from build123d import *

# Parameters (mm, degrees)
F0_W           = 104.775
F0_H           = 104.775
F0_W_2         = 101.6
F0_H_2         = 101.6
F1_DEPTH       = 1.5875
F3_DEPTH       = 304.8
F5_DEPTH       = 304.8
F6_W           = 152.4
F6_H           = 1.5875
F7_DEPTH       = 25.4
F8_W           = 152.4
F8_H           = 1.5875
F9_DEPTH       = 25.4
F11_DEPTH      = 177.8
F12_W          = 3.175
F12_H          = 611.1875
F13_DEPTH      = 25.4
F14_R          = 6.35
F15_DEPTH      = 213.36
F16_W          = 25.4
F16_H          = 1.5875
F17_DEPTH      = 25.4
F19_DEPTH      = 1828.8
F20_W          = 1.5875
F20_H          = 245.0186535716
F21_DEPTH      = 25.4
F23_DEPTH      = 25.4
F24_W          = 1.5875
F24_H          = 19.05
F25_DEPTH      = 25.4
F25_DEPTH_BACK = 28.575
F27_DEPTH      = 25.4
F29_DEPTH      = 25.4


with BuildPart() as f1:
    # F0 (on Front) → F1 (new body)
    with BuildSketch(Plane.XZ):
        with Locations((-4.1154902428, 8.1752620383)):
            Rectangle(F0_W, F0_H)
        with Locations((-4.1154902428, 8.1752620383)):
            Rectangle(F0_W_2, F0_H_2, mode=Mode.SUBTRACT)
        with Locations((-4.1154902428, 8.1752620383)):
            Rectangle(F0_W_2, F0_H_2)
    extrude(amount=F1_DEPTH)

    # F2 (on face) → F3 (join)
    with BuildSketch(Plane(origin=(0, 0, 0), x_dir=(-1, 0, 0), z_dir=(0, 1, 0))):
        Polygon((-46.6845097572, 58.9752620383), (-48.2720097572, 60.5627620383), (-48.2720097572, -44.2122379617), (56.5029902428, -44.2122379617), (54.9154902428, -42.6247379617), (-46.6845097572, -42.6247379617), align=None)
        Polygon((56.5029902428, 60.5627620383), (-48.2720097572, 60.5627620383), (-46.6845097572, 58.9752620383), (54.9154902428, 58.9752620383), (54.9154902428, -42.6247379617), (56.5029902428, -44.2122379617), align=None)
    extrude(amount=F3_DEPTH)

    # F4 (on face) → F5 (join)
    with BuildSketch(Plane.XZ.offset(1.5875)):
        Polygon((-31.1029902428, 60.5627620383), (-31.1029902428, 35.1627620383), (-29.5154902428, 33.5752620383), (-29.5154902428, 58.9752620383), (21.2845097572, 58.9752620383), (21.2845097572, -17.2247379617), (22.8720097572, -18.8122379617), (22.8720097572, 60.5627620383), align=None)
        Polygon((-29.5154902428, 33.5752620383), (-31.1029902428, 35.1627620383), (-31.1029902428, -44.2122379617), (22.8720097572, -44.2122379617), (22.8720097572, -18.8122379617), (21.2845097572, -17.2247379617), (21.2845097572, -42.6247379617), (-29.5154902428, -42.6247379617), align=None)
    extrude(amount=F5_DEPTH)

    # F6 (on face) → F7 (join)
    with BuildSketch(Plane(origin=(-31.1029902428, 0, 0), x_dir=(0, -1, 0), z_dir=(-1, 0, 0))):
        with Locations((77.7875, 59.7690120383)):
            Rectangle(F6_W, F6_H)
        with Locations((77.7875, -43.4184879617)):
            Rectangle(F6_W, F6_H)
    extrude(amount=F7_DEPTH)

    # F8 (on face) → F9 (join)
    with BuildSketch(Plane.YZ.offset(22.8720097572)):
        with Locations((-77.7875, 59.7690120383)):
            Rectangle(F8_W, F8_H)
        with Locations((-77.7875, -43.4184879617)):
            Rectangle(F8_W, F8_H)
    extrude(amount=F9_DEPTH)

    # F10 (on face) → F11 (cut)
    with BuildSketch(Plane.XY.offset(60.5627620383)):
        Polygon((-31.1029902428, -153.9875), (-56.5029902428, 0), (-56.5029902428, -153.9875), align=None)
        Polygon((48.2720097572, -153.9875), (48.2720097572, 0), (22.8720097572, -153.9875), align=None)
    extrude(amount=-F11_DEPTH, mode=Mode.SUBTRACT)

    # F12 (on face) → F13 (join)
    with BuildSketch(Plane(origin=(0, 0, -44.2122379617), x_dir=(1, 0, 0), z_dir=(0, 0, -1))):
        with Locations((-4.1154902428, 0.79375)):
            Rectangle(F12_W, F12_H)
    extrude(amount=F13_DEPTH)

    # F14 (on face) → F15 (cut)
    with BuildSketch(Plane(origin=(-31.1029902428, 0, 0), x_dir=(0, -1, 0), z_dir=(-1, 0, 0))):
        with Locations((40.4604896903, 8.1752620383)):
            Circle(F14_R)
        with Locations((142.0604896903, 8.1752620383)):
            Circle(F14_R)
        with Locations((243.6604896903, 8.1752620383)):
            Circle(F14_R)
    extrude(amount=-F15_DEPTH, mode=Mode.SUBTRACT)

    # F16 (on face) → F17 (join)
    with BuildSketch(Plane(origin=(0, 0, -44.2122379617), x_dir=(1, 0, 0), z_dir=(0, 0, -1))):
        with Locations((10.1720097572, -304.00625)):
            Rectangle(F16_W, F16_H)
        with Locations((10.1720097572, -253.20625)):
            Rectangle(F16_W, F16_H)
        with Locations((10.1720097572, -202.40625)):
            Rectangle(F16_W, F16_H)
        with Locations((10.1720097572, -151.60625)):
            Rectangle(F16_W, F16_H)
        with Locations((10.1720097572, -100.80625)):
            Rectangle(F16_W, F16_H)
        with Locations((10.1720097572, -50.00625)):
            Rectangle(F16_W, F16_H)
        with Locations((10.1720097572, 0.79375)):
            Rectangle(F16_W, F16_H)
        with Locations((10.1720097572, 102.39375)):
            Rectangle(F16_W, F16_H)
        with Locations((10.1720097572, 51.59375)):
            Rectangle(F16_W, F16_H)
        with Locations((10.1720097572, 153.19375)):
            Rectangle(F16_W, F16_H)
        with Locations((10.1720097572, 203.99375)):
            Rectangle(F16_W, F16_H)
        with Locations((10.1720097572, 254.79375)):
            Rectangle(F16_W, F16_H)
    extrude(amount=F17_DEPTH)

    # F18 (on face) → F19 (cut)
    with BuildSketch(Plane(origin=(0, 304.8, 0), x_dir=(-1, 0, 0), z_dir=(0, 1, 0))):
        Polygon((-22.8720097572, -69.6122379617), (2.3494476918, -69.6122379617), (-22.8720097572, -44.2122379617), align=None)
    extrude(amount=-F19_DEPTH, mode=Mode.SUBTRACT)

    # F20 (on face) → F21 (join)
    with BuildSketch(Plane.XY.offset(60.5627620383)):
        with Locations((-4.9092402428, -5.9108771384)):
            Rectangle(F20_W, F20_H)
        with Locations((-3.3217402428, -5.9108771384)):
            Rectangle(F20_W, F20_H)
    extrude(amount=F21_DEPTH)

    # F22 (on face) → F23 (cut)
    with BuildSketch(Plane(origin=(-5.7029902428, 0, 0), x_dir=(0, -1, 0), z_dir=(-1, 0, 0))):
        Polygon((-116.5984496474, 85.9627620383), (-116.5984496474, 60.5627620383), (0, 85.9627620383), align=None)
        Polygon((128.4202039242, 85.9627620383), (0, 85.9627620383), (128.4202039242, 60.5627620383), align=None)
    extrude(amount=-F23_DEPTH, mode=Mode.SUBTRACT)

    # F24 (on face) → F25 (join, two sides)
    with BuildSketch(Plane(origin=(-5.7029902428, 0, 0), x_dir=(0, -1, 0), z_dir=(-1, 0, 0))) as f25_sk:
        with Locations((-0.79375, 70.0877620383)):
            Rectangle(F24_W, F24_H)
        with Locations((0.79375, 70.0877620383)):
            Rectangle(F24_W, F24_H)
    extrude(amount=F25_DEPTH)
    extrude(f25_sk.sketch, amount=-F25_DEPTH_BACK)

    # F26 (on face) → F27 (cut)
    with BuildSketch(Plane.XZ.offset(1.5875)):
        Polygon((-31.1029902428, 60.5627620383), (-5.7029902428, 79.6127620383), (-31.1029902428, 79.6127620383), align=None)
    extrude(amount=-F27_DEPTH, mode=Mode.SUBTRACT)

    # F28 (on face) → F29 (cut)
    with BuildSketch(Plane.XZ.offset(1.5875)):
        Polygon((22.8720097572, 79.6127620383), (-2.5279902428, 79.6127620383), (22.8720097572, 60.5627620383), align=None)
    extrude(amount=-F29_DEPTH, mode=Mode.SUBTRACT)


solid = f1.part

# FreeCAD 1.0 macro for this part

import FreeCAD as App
import Part
import Sketcher
Q = App.Units.Quantity

doc = App.newDocument("Part")
body = doc.addObject("PartDesign::Body", "Body")

# Sketch on XZ plane
sketch1 = doc.addObject("Sketcher::SketchObject", "Sketch")
body.addObject(sketch1)
sketch1.AttachmentSupport = (doc.XZ_Plane, [""])
sketch1.MapMode = "FlatFace"
sketch1.addGeometry([
    Part.LineSegment(App.Vector(-56.50299, 60.562762, 0), App.Vector(-56.50299, -44.212238, 0)),
    Part.LineSegment(App.Vector(-56.50299, -44.212238, 0), App.Vector(48.27201, -44.212238, 0)),
    Part.LineSegment(App.Vector(48.27201, -44.212238, 0), App.Vector(48.27201, 60.562762, 0)),
    Part.LineSegment(App.Vector(48.27201, 60.562762, 0), App.Vector(-56.50299, 60.562762, 0)),
], False)
sketch1.addConstraint([
    Sketcher.Constraint("Coincident", 0, 2, 1, 1),
    Sketcher.Constraint("Coincident", 1, 2, 2, 1),
    Sketcher.Constraint("Coincident", 2, 2, 3, 1),
    Sketcher.Constraint("Coincident", 3, 2, 0, 1),
    Sketcher.Constraint("Vertical", 0),
    Sketcher.Constraint("Horizontal", 1),
    Sketcher.Constraint("Vertical", 2),
    Sketcher.Constraint("Horizontal", 3),
    Sketcher.Constraint("Equal", 3, 0),
    Sketcher.Constraint("DistanceX", 1, 1, 1, 2, Q("4.125 in")),
    Sketcher.Constraint("DistanceX", 0, 2, -1, 1, 56.50299),
    Sketcher.Constraint("DistanceY", 0, 2, -1, 1, 44.212238),
])
pad1 = doc.addObject("PartDesign::Pad", "Pad")
body.addObject(pad1)
pad1.Profile = sketch1
pad1.Length = Q("0.0625 in")

# Sketch on XZ plane
sketch2 = doc.addObject("Sketcher::SketchObject", "Sketch001")
body.addObject(sketch2)
sketch2.AttachmentSupport = (doc.XZ_Plane, [""])
sketch2.MapMode = "FlatFace"
sketch2.addGeometry([
    Part.LineSegment(App.Vector(48.27201, 60.562762, 0), App.Vector(48.27201, -44.212238, 0)),  # 0
    Part.LineSegment(App.Vector(48.27201, -44.212238, 0), App.Vector(-56.50299, -44.212238, 0)),  # 1
    Part.LineSegment(App.Vector(-56.50299, -44.212238, 0), App.Vector(-56.50299, 60.562762, 0)),  # 2
    Part.LineSegment(App.Vector(-56.50299, 60.562762, 0), App.Vector(48.27201, 60.562762, 0)),  # 3
    Part.LineSegment(App.Vector(-54.91549, -42.624738, 0), App.Vector(46.68451, -42.624738, 0)),  # 4
    Part.LineSegment(App.Vector(46.68451, -42.624738, 0), App.Vector(46.68451, 58.975262, 0)),  # 5
    Part.LineSegment(App.Vector(46.68451, 58.975262, 0), App.Vector(-54.91549, 58.975262, 0)),  # 6
    Part.LineSegment(App.Vector(-54.91549, 58.975262, 0), App.Vector(-54.91549, -42.624738, 0)),  # 7
], False)
sketch2.addConstraint([
    Sketcher.Constraint("Coincident", 0, 2, 1, 1),
    Sketcher.Constraint("Coincident", 1, 2, 2, 1),
    Sketcher.Constraint("Coincident", 2, 2, 3, 1),
    Sketcher.Constraint("Coincident", 3, 2, 0, 1),
    Sketcher.Constraint("Coincident", 4, 2, 5, 1),
    Sketcher.Constraint("Coincident", 5, 2, 6, 1),
    Sketcher.Constraint("Coincident", 6, 2, 7, 1),
    Sketcher.Constraint("Coincident", 7, 2, 4, 1),
    Sketcher.Constraint("Vertical", 0),
    Sketcher.Constraint("Horizontal", 1),
    Sketcher.Constraint("Vertical", 2),
    Sketcher.Constraint("Horizontal", 3),
    Sketcher.Constraint("Horizontal", 4),
    Sketcher.Constraint("Vertical", 5),
    Sketcher.Constraint("Horizontal", 6),
    Sketcher.Constraint("Vertical", 7),
    Sketcher.Constraint("Equal", 3, 0),
    Sketcher.Constraint("Equal", 6, 5),
    Sketcher.Constraint("DistanceX", 4, 1, 4, 2, Q("4 in")),
    Sketcher.Constraint("DistanceX", 1, 2, 1, 1, Q("4.125 in")),
    Sketcher.Constraint("DistanceX", 4, 2, 0, 2, Q("0.0625 in")),
    Sketcher.Constraint("DistanceY", 0, 2, 4, 2, Q("0.0625 in")),
    Sketcher.Constraint("DistanceX", -1, 1, 0, 2, 48.27201),
    Sketcher.Constraint("DistanceY", 0, 2, -1, 1, 44.212238),
])
pad2 = doc.addObject("PartDesign::Pad", "Pad001")
body.addObject(pad2)
pad2.Profile = sketch2
pad2.Length = Q("12 in")
pad2.Reversed = True

# Sketch on XZ plane
sketch3 = doc.addObject("Sketcher::SketchObject", "Sketch002")
body.addObject(sketch3)
sketch3.AttachmentSupport = (doc.XZ_Plane, [""])
sketch3.MapMode = "FlatFace"
sketch3.AttachmentOffset = App.Placement(App.Vector(0, 0, 0.0625 * 25.4), App.Rotation())
sketch3.addGeometry([
    Part.LineSegment(App.Vector(-31.10299, 60.562762, 0), App.Vector(-31.10299, -44.212238, 0)),  # 0
    Part.LineSegment(App.Vector(-31.10299, -44.212238, 0), App.Vector(22.87201, -44.212238, 0)),  # 1
    Part.LineSegment(App.Vector(22.87201, -44.212238, 0), App.Vector(22.87201, 60.562762, 0)),  # 2
    Part.LineSegment(App.Vector(22.87201, 60.562762, 0), App.Vector(-31.10299, 60.562762, 0)),  # 3
    Part.LineSegment(App.Vector(-29.51549, 58.975262, 0), App.Vector(21.28451, 58.975262, 0)),  # 4
    Part.LineSegment(App.Vector(21.28451, 58.975262, 0), App.Vector(21.28451, -42.624738, 0)),  # 5
    Part.LineSegment(App.Vector(21.28451, -42.624738, 0), App.Vector(-29.51549, -42.624738, 0)),  # 6
    Part.LineSegment(App.Vector(-29.51549, -42.624738, 0), App.Vector(-29.51549, 58.975262, 0)),  # 7
], False)
sketch3.addConstraint([
    Sketcher.Constraint("Coincident", 0, 2, 1, 1),
    Sketcher.Constraint("Coincident", 1, 2, 2, 1),
    Sketcher.Constraint("Coincident", 2, 2, 3, 1),
    Sketcher.Constraint("Coincident", 3, 2, 0, 1),
    Sketcher.Constraint("Coincident", 4, 2, 5, 1),
    Sketcher.Constraint("Coincident", 5, 2, 6, 1),
    Sketcher.Constraint("Coincident", 6, 2, 7, 1),
    Sketcher.Constraint("Coincident", 7, 2, 4, 1),
    Sketcher.Constraint("Vertical", 0),
    Sketcher.Constraint("Horizontal", 1),
    Sketcher.Constraint("Vertical", 2),
    Sketcher.Constraint("Horizontal", 3),
    Sketcher.Constraint("Horizontal", 4),
    Sketcher.Constraint("Vertical", 5),
    Sketcher.Constraint("Horizontal", 6),
    Sketcher.Constraint("Vertical", 7),
    Sketcher.Constraint("DistanceX", 4, 1, 4, 2, Q("2 in")),
    Sketcher.Constraint("DistanceY", 5, 2, 5, 1, Q("4 in")),
    Sketcher.Constraint("DistanceX", 1, 1, 1, 2, Q("2.125 in")),
    Sketcher.Constraint("DistanceY", 0, 2, 0, 1, Q("4.125 in")),
    Sketcher.Constraint("DistanceX", 4, 2, 2, 2, Q("0.0625 in")),
    Sketcher.Constraint("DistanceY", 4, 2, 2, 2, Q("0.0625 in")),
    Sketcher.Constraint("DistanceX", 0, 2, -1, 1, 31.10299),
    Sketcher.Constraint("DistanceY", 0, 2, -1, 1, 44.212238),
])
pad3 = doc.addObject("PartDesign::Pad", "Pad002")
body.addObject(pad3)
pad3.Profile = sketch3
pad3.Length = Q("12 in")

# Sketch on YZ plane
sketch4 = doc.addObject("Sketcher::SketchObject", "Sketch003")
body.addObject(sketch4)
sketch4.AttachmentSupport = (doc.YZ_Plane, [""])
sketch4.MapMode = "FlatFace"
sketch4.AttachmentOffset = App.Placement(App.Vector(0, 0, -31.10299), App.Rotation())
sketch4.addGeometry([
    Part.LineSegment(App.Vector(-1.5875, 60.562762, 0), App.Vector(-1.5875, 58.975262, 0)),  # 0
    Part.LineSegment(App.Vector(-1.5875, 58.975262, 0), App.Vector(-153.9875, 58.975262, 0)),  # 1
    Part.LineSegment(App.Vector(-153.9875, 58.975262, 0), App.Vector(-153.9875, 60.562762, 0)),  # 2
    Part.LineSegment(App.Vector(-153.9875, 60.562762, 0), App.Vector(-1.5875, 60.562762, 0)),  # 3
    Part.LineSegment(App.Vector(-1.5875, -42.624738, 0), App.Vector(-1.5875, -44.212238, 0)),  # 4
    Part.LineSegment(App.Vector(-1.5875, -44.212238, 0), App.Vector(-153.9875, -44.212238, 0)),  # 5
    Part.LineSegment(App.Vector(-153.9875, -44.212238, 0), App.Vector(-153.9875, -42.624738, 0)),  # 6
    Part.LineSegment(App.Vector(-153.9875, -42.624738, 0), App.Vector(-1.5875, -42.624738, 0)),  # 7
], False)
sketch4.addConstraint([
    Sketcher.Constraint("Coincident", 0, 2, 1, 1),
    Sketcher.Constraint("Coincident", 1, 2, 2, 1),
    Sketcher.Constraint("Coincident", 2, 2, 3, 1),
    Sketcher.Constraint("Coincident", 3, 2, 0, 1),
    Sketcher.Constraint("Coincident", 4, 2, 5, 1),
    Sketcher.Constraint("Coincident", 5, 2, 6, 1),
    Sketcher.Constraint("Coincident", 6, 2, 7, 1),
    Sketcher.Constraint("Coincident", 7, 2, 4, 1),
    Sketcher.Constraint("Vertical", 0),
    Sketcher.Constraint("Horizontal", 1),
    Sketcher.Constraint("Vertical", 2),
    Sketcher.Constraint("Horizontal", 3),
    Sketcher.Constraint("Vertical", 4),
    Sketcher.Constraint("Horizontal", 5),
    Sketcher.Constraint("Vertical", 6),
    Sketcher.Constraint("Horizontal", 7),
    Sketcher.Constraint("Vertical", 3, 2, 4, 2),
    Sketcher.Constraint("Vertical", 2, 2, 5, 2),
    Sketcher.Constraint("Equal", 2, 4),
    Sketcher.Constraint("DistanceX", 1, 2, 1, 1, Q("6 in")),
    Sketcher.Constraint("DistanceY", 6, 2, 1, 2, Q("4 in")),
    Sketcher.Constraint("DistanceY", 0, 2, 0, 1, Q("0.0625 in")),
    Sketcher.Constraint("DistanceX", 0, 2, -1, 1, Q("0.0625 in")),
    Sketcher.Constraint("DistanceY", -1, 1, 0, 2, 58.975262),
])
pad4 = doc.addObject("PartDesign::Pad", "Pad003")
body.addObject(pad4)
pad4.Profile = sketch4
pad4.Length = Q("1 in")
pad4.Reversed = True

# Sketch on YZ plane
sketch5 = doc.addObject("Sketcher::SketchObject", "Sketch004")
body.addObject(sketch5)
sketch5.AttachmentSupport = (doc.YZ_Plane, [""])
sketch5.MapMode = "FlatFace"
sketch5.AttachmentOffset = App.Placement(App.Vector(0, 0, 22.87201), App.Rotation())
sketch5.addGeometry([
    Part.LineSegment(App.Vector(-153.9875, 60.562762, 0), App.Vector(-153.9875, 58.975262, 0)),  # 0
    Part.LineSegment(App.Vector(-153.9875, 58.975262, 0), App.Vector(-1.5875, 58.975262, 0)),  # 1
    Part.LineSegment(App.Vector(-1.5875, 58.975262, 0), App.Vector(-1.5875, 60.562762, 0)),  # 2
    Part.LineSegment(App.Vector(-1.5875, 60.562762, 0), App.Vector(-153.9875, 60.562762, 0)),  # 3
    Part.LineSegment(App.Vector(-153.9875, -42.624738, 0), App.Vector(-153.9875, -44.212238, 0)),  # 4
    Part.LineSegment(App.Vector(-153.9875, -44.212238, 0), App.Vector(-1.5875, -44.212238, 0)),  # 5
    Part.LineSegment(App.Vector(-1.5875, -44.212238, 0), App.Vector(-1.5875, -42.624738, 0)),  # 6
    Part.LineSegment(App.Vector(-1.5875, -42.624738, 0), App.Vector(-153.9875, -42.624738, 0)),  # 7
], False)
sketch5.addConstraint([
    Sketcher.Constraint("Coincident", 0, 2, 1, 1),
    Sketcher.Constraint("Coincident", 1, 2, 2, 1),
    Sketcher.Constraint("Coincident", 2, 2, 3, 1),
    Sketcher.Constraint("Coincident", 3, 2, 0, 1),
    Sketcher.Constraint("Coincident", 4, 2, 5, 1),
    Sketcher.Constraint("Coincident", 5, 2, 6, 1),
    Sketcher.Constraint("Coincident", 6, 2, 7, 1),
    Sketcher.Constraint("Coincident", 7, 2, 4, 1),
    Sketcher.Constraint("Vertical", 0),
    Sketcher.Constraint("Horizontal", 1),
    Sketcher.Constraint("Vertical", 2),
    Sketcher.Constraint("Horizontal", 3),
    Sketcher.Constraint("Vertical", 4),
    Sketcher.Constraint("Horizontal", 5),
    Sketcher.Constraint("Vertical", 6),
    Sketcher.Constraint("Horizontal", 7),
    Sketcher.Constraint("Vertical", 3, 2, 4, 2),
    Sketcher.Constraint("Vertical", 2, 2, 5, 2),
    Sketcher.Constraint("Equal", 2, 4),
    Sketcher.Constraint("DistanceX", 1, 1, 1, 2, Q("6 in")),
    Sketcher.Constraint("DistanceY", 6, 2, 1, 2, Q("4 in")),
    Sketcher.Constraint("DistanceY", 0, 2, 0, 1, Q("0.0625 in")),
    Sketcher.Constraint("DistanceX", 0, 2, -1, 1, Q("6.0625 in")),
    Sketcher.Constraint("DistanceY", -1, 1, 0, 2, 58.975262),
])
pad5 = doc.addObject("PartDesign::Pad", "Pad004")
body.addObject(pad5)
pad5.Profile = sketch5
pad5.Length = Q("1 in")

# Sketch on XY plane
sketch6 = doc.addObject("Sketcher::SketchObject", "Sketch005")
body.addObject(sketch6)
sketch6.AttachmentSupport = (doc.XY_Plane, [""])
sketch6.MapMode = "FlatFace"
sketch6.AttachmentOffset = App.Placement(App.Vector(0, 0, 60.562762), App.Rotation())
sketch6.addGeometry([
    Part.LineSegment(App.Vector(-31.10299, -153.9875, 0), App.Vector(-56.50299, 0, 0)),  # 0
    Part.LineSegment(App.Vector(-56.50299, 0, 0), App.Vector(-56.50299, -153.9875, 0)),  # 1
    Part.LineSegment(App.Vector(-56.50299, -153.9875, 0), App.Vector(-31.10299, -153.9875, 0)),  # 2
    Part.LineSegment(App.Vector(48.27201, -153.9875, 0), App.Vector(48.27201, 0, 0)),  # 3
    Part.LineSegment(App.Vector(48.27201, 0, 0), App.Vector(22.87201, -153.9875, 0)),  # 4
    Part.LineSegment(App.Vector(22.87201, -153.9875, 0), App.Vector(48.27201, -153.9875, 0)),  # 5
], False)
sketch6.addConstraint([
    Sketcher.Constraint("Coincident", 0, 2, 1, 1),
    Sketcher.Constraint("Coincident", 1, 2, 2, 1),
    Sketcher.Constraint("Coincident", 2, 2, 0, 1),
    Sketcher.Constraint("Coincident", 3, 2, 4, 1),
    Sketcher.Constraint("Coincident", 4, 2, 5, 1),
    Sketcher.Constraint("Coincident", 5, 2, 3, 1),
    Sketcher.Constraint("Vertical", 1),
    Sketcher.Constraint("Horizontal", 2),
    Sketcher.Constraint("Vertical", 3),
    Sketcher.Constraint("Horizontal", 5),
    Sketcher.Constraint("PointOnObject", 0, 2, -1),
    Sketcher.Constraint("PointOnObject", 3, 2, -1),
    Sketcher.Constraint("Horizontal", 2, 2, 4, 2),
    Sketcher.Constraint("Equal", 2, 5),
    Sketcher.Constraint("DistanceX", 2, 1, 2, 2, Q("1 in")),
    Sketcher.Constraint("DistanceY", 1, 2, 1, 1, Q("6.0625 in")),
    Sketcher.Constraint("DistanceX", 0, 2, 3, 2, Q("4.125 in")),
    Sketcher.Constraint("DistanceX", 0, 2, -1, 1, 56.50299),
])
pocket1 = doc.addObject("PartDesign::Pocket", "Pocket")
body.addObject(pocket1)
pocket1.Profile = sketch6
pocket1.Length = Q("7 in")

# Sketch on XY plane
sketch7 = doc.addObject("Sketcher::SketchObject", "Sketch006")
body.addObject(sketch7)
sketch7.AttachmentSupport = (doc.XY_Plane, [""])
sketch7.MapMode = "FlatFace"
sketch7.AttachmentOffset = App.Placement(App.Vector(0, 0, -44.212238), App.Rotation())
sketch7.addGeometry([
    Part.LineSegment(App.Vector(-5.70299, -306.3875, 0), App.Vector(-5.70299, 304.8, 0)),
    Part.LineSegment(App.Vector(-5.70299, 304.8, 0), App.Vector(-2.52799, 304.8, 0)),
    Part.LineSegment(App.Vector(-2.52799, 304.8, 0), App.Vector(-2.52799, -306.3875, 0)),
    Part.LineSegment(App.Vector(-2.52799, -306.3875, 0), App.Vector(-5.70299, -306.3875, 0)),
], False)
sketch7.addConstraint([
    Sketcher.Constraint("Coincident", 0, 2, 1, 1),
    Sketcher.Constraint("Coincident", 1, 2, 2, 1),
    Sketcher.Constraint("Coincident", 2, 2, 3, 1),
    Sketcher.Constraint("Coincident", 3, 2, 0, 1),
    Sketcher.Constraint("Vertical", 0),
    Sketcher.Constraint("Horizontal", 1),
    Sketcher.Constraint("Vertical", 2),
    Sketcher.Constraint("Horizontal", 3),
    Sketcher.Constraint("DistanceY", -1, 1, 0, 2, Q("12 in")),
    Sketcher.Constraint("DistanceX", 1, 1, 1, 2, Q("0.125 in")),
    Sketcher.Constraint("DistanceY", 0, 1, 0, 2, Q("24.0625 in")),
    Sketcher.Constraint("DistanceX", 0, 2, -1, 1, 5.70299),
])
pad6 = doc.addObject("PartDesign::Pad", "Pad005")
body.addObject(pad6)
pad6.Profile = sketch7
pad6.Length = Q("1 in")
pad6.Reversed = True

# Sketch on YZ plane
sketch8 = doc.addObject("Sketcher::SketchObject", "Sketch007")
body.addObject(sketch8)
sketch8.AttachmentSupport = (doc.YZ_Plane, [""])
sketch8.MapMode = "FlatFace"
sketch8.AttachmentOffset = App.Placement(App.Vector(0, 0, -31.10299), App.Rotation())
sketch8.addGeometry([
    Part.Circle(App.Vector(-40.46049, 8.175262, 0), App.Vector(0, 0, 1), 6.35),
    Part.Circle(App.Vector(-142.06049, 8.175262, 0), App.Vector(0, 0, 1), 6.35),
    Part.Circle(App.Vector(-243.66049, 8.175262, 0), App.Vector(0, 0, 1), 6.35),
], False)
sketch8.addConstraint([
    Sketcher.Constraint("Equal", 0, 1),
    Sketcher.Constraint("Equal", 1, 2),
    Sketcher.Constraint("Horizontal", 0, 3, 1, 3),
    Sketcher.Constraint("Horizontal", 1, 3, 2, 3),
    Sketcher.Constraint("Diameter", 0, Q("0.5 in")),
    Sketcher.Constraint("DistanceX", 1, 3, 0, 3, Q("4 in")),
    Sketcher.Constraint("DistanceX", 2, 3, 1, 3, Q("4 in")),
    Sketcher.Constraint("DistanceX", 0, 3, -1, 1, 40.46049),
    Sketcher.Constraint("DistanceY", -1, 1, 0, 3, 8.175262),
])
pocket2 = doc.addObject("PartDesign::Pocket", "Pocket001")
body.addObject(pocket2)
pocket2.Profile = sketch8
pocket2.Length = Q("8.4 in")
pocket2.Reversed = True

# Sketch on XY plane
sketch9 = doc.addObject("Sketcher::SketchObject", "Sketch008")
body.addObject(sketch9)
sketch9.AttachmentSupport = (doc.XY_Plane, [""])
sketch9.MapMode = "FlatFace"
sketch9.AttachmentOffset = App.Placement(App.Vector(0, 0, -44.212238), App.Rotation())
sketch9.addGeometry([
    Part.LineSegment(App.Vector(-2.52799, 303.2125, 0), App.Vector(-2.52799, 304.8, 0)),  # 0
    Part.LineSegment(App.Vector(-2.52799, 304.8, 0), App.Vector(22.87201, 304.8, 0)),  # 1
    Part.LineSegment(App.Vector(22.87201, 304.8, 0), App.Vector(22.87201, 303.2125, 0)),  # 2
    Part.LineSegment(App.Vector(22.87201, 303.2125, 0), App.Vector(-2.52799, 303.2125, 0)),  # 3
    Part.LineSegment(App.Vector(-2.52799, 252.4125, 0), App.Vector(-2.52799, 254, 0)),  # 4
    Part.LineSegment(App.Vector(-2.52799, 254, 0), App.Vector(22.87201, 254, 0)),  # 5
    Part.LineSegment(App.Vector(22.87201, 254, 0), App.Vector(22.87201, 252.4125, 0)),  # 6
    Part.LineSegment(App.Vector(22.87201, 252.4125, 0), App.Vector(-2.52799, 252.4125, 0)),  # 7
    Part.LineSegment(App.Vector(-2.52799, 201.6125, 0), App.Vector(-2.52799, 203.2, 0)),  # 8
    Part.LineSegment(App.Vector(-2.52799, 203.2, 0), App.Vector(22.87201, 203.2, 0)),  # 9
    Part.LineSegment(App.Vector(22.87201, 203.2, 0), App.Vector(22.87201, 201.6125, 0)),  # 10
    Part.LineSegment(App.Vector(22.87201, 201.6125, 0), App.Vector(-2.52799, 201.6125, 0)),  # 11
    Part.LineSegment(App.Vector(-2.52799, 150.8125, 0), App.Vector(-2.52799, 152.4, 0)),  # 12
    Part.LineSegment(App.Vector(-2.52799, 152.4, 0), App.Vector(22.87201, 152.4, 0)),  # 13
    Part.LineSegment(App.Vector(22.87201, 152.4, 0), App.Vector(22.87201, 150.8125, 0)),  # 14
    Part.LineSegment(App.Vector(22.87201, 150.8125, 0), App.Vector(-2.52799, 150.8125, 0)),  # 15
    Part.LineSegment(App.Vector(-2.52799, 100.0125, 0), App.Vector(-2.52799, 101.6, 0)),  # 16
    Part.LineSegment(App.Vector(-2.52799, 101.6, 0), App.Vector(22.87201, 101.6, 0)),  # 17
    Part.LineSegment(App.Vector(22.87201, 101.6, 0), App.Vector(22.87201, 100.0125, 0)),  # 18
    Part.LineSegment(App.Vector(22.87201, 100.0125, 0), App.Vector(-2.52799, 100.0125, 0)),  # 19
    Part.LineSegment(App.Vector(-2.52799, 49.2125, 0), App.Vector(-2.52799, 50.8, 0)),  # 20
    Part.LineSegment(App.Vector(-2.52799, 50.8, 0), App.Vector(22.87201, 50.8, 0)),  # 21
    Part.LineSegment(App.Vector(22.87201, 50.8, 0), App.Vector(22.87201, 49.2125, 0)),  # 22
    Part.LineSegment(App.Vector(22.87201, 49.2125, 0), App.Vector(-2.52799, 49.2125, 0)),  # 23
    Part.LineSegment(App.Vector(-2.52799, -1.5875, 0), App.Vector(-2.52799, 0, 0)),  # 24
    Part.LineSegment(App.Vector(-2.52799, 0, 0), App.Vector(22.87201, 0, 0)),  # 25
    Part.LineSegment(App.Vector(22.87201, 0, 0), App.Vector(22.87201, -1.5875, 0)),  # 26
    Part.LineSegment(App.Vector(22.87201, -1.5875, 0), App.Vector(-2.52799, -1.5875, 0)),  # 27
    Part.LineSegment(App.Vector(-2.52799, -103.1875, 0), App.Vector(-2.52799, -101.6, 0)),  # 28
    Part.LineSegment(App.Vector(-2.52799, -101.6, 0), App.Vector(22.87201, -101.6, 0)),  # 29
    Part.LineSegment(App.Vector(22.87201, -101.6, 0), App.Vector(22.87201, -103.1875, 0)),  # 30
    Part.LineSegment(App.Vector(22.87201, -103.1875, 0), App.Vector(-2.52799, -103.1875, 0)),  # 31
    Part.LineSegment(App.Vector(-2.52799, -52.3875, 0), App.Vector(-2.52799, -50.8, 0)),  # 32
    Part.LineSegment(App.Vector(-2.52799, -50.8, 0), App.Vector(22.87201, -50.8, 0)),  # 33
    Part.LineSegment(App.Vector(22.87201, -50.8, 0), App.Vector(22.87201, -52.3875, 0)),  # 34
    Part.LineSegment(App.Vector(22.87201, -52.3875, 0), App.Vector(-2.52799, -52.3875, 0)),  # 35
    Part.LineSegment(App.Vector(-2.52799, -153.9875, 0), App.Vector(-2.52799, -152.4, 0)),  # 36
    Part.LineSegment(App.Vector(-2.52799, -152.4, 0), App.Vector(22.87201, -152.4, 0)),  # 37
    Part.LineSegment(App.Vector(22.87201, -152.4, 0), App.Vector(22.87201, -153.9875, 0)),  # 38
    Part.LineSegment(App.Vector(22.87201, -153.9875, 0), App.Vector(-2.52799, -153.9875, 0)),  # 39
    Part.LineSegment(App.Vector(-2.52799, -204.7875, 0), App.Vector(-2.52799, -203.2, 0)),  # 40
    Part.LineSegment(App.Vector(-2.52799, -203.2, 0), App.Vector(22.87201, -203.2, 0)),  # 41
    Part.LineSegment(App.Vector(22.87201, -203.2, 0), App.Vector(22.87201, -204.7875, 0)),  # 42
    Part.LineSegment(App.Vector(22.87201, -204.7875, 0), App.Vector(-2.52799, -204.7875, 0)),  # 43
    Part.LineSegment(App.Vector(-2.52799, -255.5875, 0), App.Vector(-2.52799, -254, 0)),  # 44
    Part.LineSegment(App.Vector(-2.52799, -254, 0), App.Vector(22.87201, -254, 0)),  # 45
    Part.LineSegment(App.Vector(22.87201, -254, 0), App.Vector(22.87201, -255.5875, 0)),  # 46
    Part.LineSegment(App.Vector(22.87201, -255.5875, 0), App.Vector(-2.52799, -255.5875, 0)),  # 47
], False)
sketch9.addConstraint([
    Sketcher.Constraint("Coincident", 0, 2, 1, 1),
    Sketcher.Constraint("Coincident", 1, 2, 2, 1),
    Sketcher.Constraint("Coincident", 2, 2, 3, 1),
    Sketcher.Constraint("Coincident", 3, 2, 0, 1),
    Sketcher.Constraint("Coincident", 4, 2, 5, 1),
    Sketcher.Constraint("Coincident", 5, 2, 6, 1),
    Sketcher.Constraint("Coincident", 6, 2, 7, 1),
    Sketcher.Constraint("Coincident", 7, 2, 4, 1),
    Sketcher.Constraint("Coincident", 8, 2, 9, 1),
    Sketcher.Constraint("Coincident", 9, 2, 10, 1),
    Sketcher.Constraint("Coincident", 10, 2, 11, 1),
    Sketcher.Constraint("Coincident", 11, 2, 8, 1),
    Sketcher.Constraint("Coincident", 12, 2, 13, 1),
    Sketcher.Constraint("Coincident", 13, 2, 14, 1),
    Sketcher.Constraint("Coincident", 14, 2, 15, 1),
    Sketcher.Constraint("Coincident", 15, 2, 12, 1),
    Sketcher.Constraint("Coincident", 16, 2, 17, 1),
    Sketcher.Constraint("Coincident", 17, 2, 18, 1),
    Sketcher.Constraint("Coincident", 18, 2, 19, 1),
    Sketcher.Constraint("Coincident", 19, 2, 16, 1),
    Sketcher.Constraint("Coincident", 20, 2, 21, 1),
    Sketcher.Constraint("Coincident", 21, 2, 22, 1),
    Sketcher.Constraint("Coincident", 22, 2, 23, 1),
    Sketcher.Constraint("Coincident", 23, 2, 20, 1),
    Sketcher.Constraint("Coincident", 24, 2, 25, 1),
    Sketcher.Constraint("Coincident", 25, 2, 26, 1),
    Sketcher.Constraint("Coincident", 26, 2, 27, 1),
    Sketcher.Constraint("Coincident", 27, 2, 24, 1),
    Sketcher.Constraint("Coincident", 28, 2, 29, 1),
    Sketcher.Constraint("Coincident", 29, 2, 30, 1),
    Sketcher.Constraint("Coincident", 30, 2, 31, 1),
    Sketcher.Constraint("Coincident", 31, 2, 28, 1),
    Sketcher.Constraint("Coincident", 32, 2, 33, 1),
    Sketcher.Constraint("Coincident", 33, 2, 34, 1),
    Sketcher.Constraint("Coincident", 34, 2, 35, 1),
    Sketcher.Constraint("Coincident", 35, 2, 32, 1),
    Sketcher.Constraint("Coincident", 36, 2, 37, 1),
    Sketcher.Constraint("Coincident", 37, 2, 38, 1),
    Sketcher.Constraint("Coincident", 38, 2, 39, 1),
    Sketcher.Constraint("Coincident", 39, 2, 36, 1),
    Sketcher.Constraint("Coincident", 40, 2, 41, 1),
    Sketcher.Constraint("Coincident", 41, 2, 42, 1),
    Sketcher.Constraint("Coincident", 42, 2, 43, 1),
    Sketcher.Constraint("Coincident", 43, 2, 40, 1),
    Sketcher.Constraint("Coincident", 44, 2, 45, 1),
    Sketcher.Constraint("Coincident", 45, 2, 46, 1),
    Sketcher.Constraint("Coincident", 46, 2, 47, 1),
    Sketcher.Constraint("Coincident", 47, 2, 44, 1),
    Sketcher.Constraint("Vertical", 0),
    Sketcher.Constraint("Horizontal", 1),
    Sketcher.Constraint("Vertical", 2),
    Sketcher.Constraint("Horizontal", 3),
    Sketcher.Constraint("Vertical", 4),
    Sketcher.Constraint("Horizontal", 5),
    Sketcher.Constraint("Vertical", 6),
    Sketcher.Constraint("Horizontal", 7),
    Sketcher.Constraint("Vertical", 8),
    Sketcher.Constraint("Horizontal", 9),
    Sketcher.Constraint("Vertical", 10),
    Sketcher.Constraint("Horizontal", 11),
    Sketcher.Constraint("Vertical", 12),
    Sketcher.Constraint("Horizontal", 13),
    Sketcher.Constraint("Vertical", 14),
    Sketcher.Constraint("Horizontal", 15),
    Sketcher.Constraint("Vertical", 16),
    Sketcher.Constraint("Horizontal", 17),
    Sketcher.Constraint("Vertical", 18),
    Sketcher.Constraint("Horizontal", 19),
    Sketcher.Constraint("Vertical", 20),
    Sketcher.Constraint("Horizontal", 21),
    Sketcher.Constraint("Vertical", 22),
    Sketcher.Constraint("Horizontal", 23),
    Sketcher.Constraint("Vertical", 24),
    Sketcher.Constraint("Horizontal", 25),
    Sketcher.Constraint("Vertical", 26),
    Sketcher.Constraint("Horizontal", 27),
    Sketcher.Constraint("Vertical", 28),
    Sketcher.Constraint("Horizontal", 29),
    Sketcher.Constraint("Vertical", 30),
    Sketcher.Constraint("Horizontal", 31),
    Sketcher.Constraint("Vertical", 32),
    Sketcher.Constraint("Horizontal", 33),
    Sketcher.Constraint("Vertical", 34),
    Sketcher.Constraint("Horizontal", 35),
    Sketcher.Constraint("Vertical", 36),
    Sketcher.Constraint("Horizontal", 37),
    Sketcher.Constraint("Vertical", 38),
    Sketcher.Constraint("Horizontal", 39),
    Sketcher.Constraint("Vertical", 40),
    Sketcher.Constraint("Horizontal", 41),
    Sketcher.Constraint("Vertical", 42),
    Sketcher.Constraint("Horizontal", 43),
    Sketcher.Constraint("Vertical", 44),
    Sketcher.Constraint("Horizontal", 45),
    Sketcher.Constraint("Vertical", 46),
    Sketcher.Constraint("Horizontal", 47),
    Sketcher.Constraint("Symmetric", 16, 2, 28, 2, -1),
    Sketcher.Constraint("Symmetric", 20, 2, 32, 2, -1),
    Sketcher.Constraint("Symmetric", 12, 2, 36, 2, -1),
    Sketcher.Constraint("Symmetric", 8, 2, 40, 2, -1),
    Sketcher.Constraint("Symmetric", 4, 2, 44, 2, -1),
    Sketcher.Constraint("PointOnObject", 24, 2, -1),
    Sketcher.Constraint("Vertical", 3, 2, 4, 2),
    Sketcher.Constraint("Vertical", 2, 2, 5, 2),
    Sketcher.Constraint("Vertical", 7, 2, 8, 2),
    Sketcher.Constraint("Vertical", 6, 2, 9, 2),
    Sketcher.Constraint("Vertical", 11, 2, 12, 2),
    Sketcher.Constraint("Vertical", 10, 2, 13, 2),
    Sketcher.Constraint("Vertical", 15, 2, 16, 2),
    Sketcher.Constraint("Vertical", 14, 2, 17, 2),
    Sketcher.Constraint("Vertical", 19, 2, 20, 2),
    Sketcher.Constraint("Vertical", 18, 2, 21, 2),
    Sketcher.Constraint("Vertical", 23, 2, 24, 2),
    Sketcher.Constraint("Vertical", 22, 2, 25, 2),
    Sketcher.Constraint("Vertical", 26, 2, 29, 2),
    Sketcher.Constraint("Vertical", 30, 2, 33, 2),
    Sketcher.Constraint("Vertical", 34, 2, 37, 2),
    Sketcher.Constraint("Vertical", 38, 2, 41, 2),
    Sketcher.Constraint("Vertical", 42, 2, 45, 2),
    Sketcher.Constraint("Equal", 2, 4),
    Sketcher.Constraint("Equal", 6, 8),
    Sketcher.Constraint("Equal", 10, 12),
    Sketcher.Constraint("Equal", 14, 16),
    Sketcher.Constraint("Equal", 18, 20),
    Sketcher.Constraint("Equal", 22, 24),
    Sketcher.Constraint("Equal", 26, 28),
    Sketcher.Constraint("Equal", 30, 32),
    Sketcher.Constraint("Equal", 34, 36),
    Sketcher.Constraint("Equal", 38, 40),
    Sketcher.Constraint("Equal", 42, 44),
    Sketcher.Constraint("DistanceX", 1, 1, 1, 2, Q("1 in")),
    Sketcher.Constraint("DistanceY", -1, 1, 0, 2, Q("12 in")),
    Sketcher.Constraint("DistanceY", -1, 1, 4, 2, Q("10 in")),
    Sketcher.Constraint("DistanceY", -1, 1, 8, 2, Q("8 in")),
    Sketcher.Constraint("DistanceY", -1, 1, 12, 2, Q("6 in")),
    Sketcher.Constraint("DistanceY", -1, 1, 16, 2, Q("4 in")),
    Sketcher.Constraint("DistanceY", -1, 1, 20, 2, Q("2 in")),
    Sketcher.Constraint("DistanceY", 0, 1, 0, 2, Q("0.0625 in")),
    Sketcher.Constraint("DistanceX", 0, 2, -1, 1, 2.52799),
])
pad7 = doc.addObject("PartDesign::Pad", "Pad006")
body.addObject(pad7)
pad7.Profile = sketch9
pad7.Length = Q("1 in")
pad7.Reversed = True

# Sketch on XZ plane
sketch10 = doc.addObject("Sketcher::SketchObject", "Sketch009")
body.addObject(sketch10)
sketch10.AttachmentSupport = (doc.XZ_Plane, [""])
sketch10.MapMode = "FlatFace"
sketch10.AttachmentOffset = App.Placement(App.Vector(0, 0, -12 * 25.4), App.Rotation())
sketch10.addGeometry([
    Part.LineSegment(App.Vector(22.87201, -69.612238, 0), App.Vector(-2.349448, -69.612238, 0)),
    Part.LineSegment(App.Vector(-2.349448, -69.612238, 0), App.Vector(22.87201, -44.212238, 0)),
    Part.LineSegment(App.Vector(22.87201, -44.212238, 0), App.Vector(22.87201, -69.612238, 0)),
], False)
sketch10.addConstraint([
    Sketcher.Constraint("Coincident", 0, 2, 1, 1),
    Sketcher.Constraint("Coincident", 1, 2, 2, 1),
    Sketcher.Constraint("Coincident", 2, 2, 0, 1),
    Sketcher.Constraint("Horizontal", 0),
    Sketcher.Constraint("Vertical", 2),
    Sketcher.Constraint("DistanceY", 2, 2, 2, 1, Q("1 in")),
    Sketcher.Constraint("Distance", 1, 35.794998),
    Sketcher.Constraint("DistanceX", -1, 1, 1, 2, 22.87201),
    Sketcher.Constraint("DistanceY", 0, 2, -1, 1, 69.612238),
])
pocket3 = doc.addObject("PartDesign::Pocket", "Pocket002")
body.addObject(pocket3)
pocket3.Profile = sketch10
pocket3.Length = Q("72 in")
pocket3.Reversed = True

# Sketch on XY plane
sketch11 = doc.addObject("Sketcher::SketchObject", "Sketch010")
body.addObject(sketch11)
sketch11.AttachmentSupport = (doc.XY_Plane, [""])
sketch11.MapMode = "FlatFace"
sketch11.AttachmentOffset = App.Placement(App.Vector(0, 0, 60.562762), App.Rotation())
sketch11.addGeometry([
    Part.LineSegment(App.Vector(-5.70299, 116.59845, 0), App.Vector(-5.70299, -128.420204, 0)),
    Part.LineSegment(App.Vector(-5.70299, -128.420204, 0), App.Vector(-2.52799, -128.420204, 0)),
    Part.LineSegment(App.Vector(-2.52799, -128.420204, 0), App.Vector(-2.52799, 116.59845, 0)),
    Part.LineSegment(App.Vector(-2.52799, 116.59845, 0), App.Vector(-5.70299, 116.59845, 0)),
], False)
sketch11.addConstraint([
    Sketcher.Constraint("Coincident", 0, 2, 1, 1),
    Sketcher.Constraint("Coincident", 1, 2, 2, 1),
    Sketcher.Constraint("Coincident", 2, 2, 3, 1),
    Sketcher.Constraint("Coincident", 3, 2, 0, 1),
    Sketcher.Constraint("Vertical", 0),
    Sketcher.Constraint("Horizontal", 1),
    Sketcher.Constraint("Vertical", 2),
    Sketcher.Constraint("Horizontal", 3),
    Sketcher.Constraint("DistanceX", 1, 1, 1, 2, Q("0.125 in")),
    Sketcher.Constraint("DistanceY", 0, 2, 0, 1, 245.018654),
    Sketcher.Constraint("DistanceX", 0, 2, -1, 1, 5.70299),
    Sketcher.Constraint("DistanceY", -1, 1, 2, 2, 116.59845),
])
pad8 = doc.addObject("PartDesign::Pad", "Pad007")
body.addObject(pad8)
pad8.Profile = sketch11
pad8.Length = Q("1 in")

# Sketch on YZ plane
sketch12 = doc.addObject("Sketcher::SketchObject", "Sketch011")
body.addObject(sketch12)
sketch12.AttachmentSupport = (doc.YZ_Plane, [""])
sketch12.MapMode = "FlatFace"
sketch12.AttachmentOffset = App.Placement(App.Vector(0, 0, -5.70299), App.Rotation())
sketch12.addGeometry([
    Part.LineSegment(App.Vector(116.59845, 85.962762, 0), App.Vector(116.59845, 60.562762, 0)),  # 0
    Part.LineSegment(App.Vector(116.59845, 60.562762, 0), App.Vector(0, 85.962762, 0)),  # 1
    Part.LineSegment(App.Vector(0, 85.962762, 0), App.Vector(116.59845, 85.962762, 0)),  # 2
    Part.LineSegment(App.Vector(-128.420204, 85.962762, 0), App.Vector(0, 85.962762, 0)),  # 3
    Part.LineSegment(App.Vector(0, 85.962762, 0), App.Vector(-128.420204, 60.562762, 0)),  # 4
    Part.LineSegment(App.Vector(-128.420204, 60.562762, 0), App.Vector(-128.420204, 85.962762, 0)),  # 5
], False)
sketch12.addConstraint([
    Sketcher.Constraint("Coincident", 0, 2, 1, 1),
    Sketcher.Constraint("Coincident", 1, 2, 2, 1),
    Sketcher.Constraint("Coincident", 2, 2, 0, 1),
    Sketcher.Constraint("Coincident", 3, 2, 4, 1),
    Sketcher.Constraint("Coincident", 4, 2, 5, 1),
    Sketcher.Constraint("Coincident", 5, 2, 3, 1),
    Sketcher.Constraint("Vertical", 0),
    Sketcher.Constraint("Horizontal", 2),
    Sketcher.Constraint("Horizontal", 3),
    Sketcher.Constraint("Vertical", 5),
    Sketcher.Constraint("Coincident", 3, 2, 1, 2),
    Sketcher.Constraint("PointOnObject", 1, 2, -2),
    Sketcher.Constraint("Horizontal", 0, 2, 4, 2),
    Sketcher.Constraint("DistanceY", 0, 2, 0, 1, Q("1 in")),
    Sketcher.Constraint("DistanceX", 2, 1, 2, 2, 116.59845),
    Sketcher.Constraint("DistanceX", 3, 1, 3, 2, 128.420204),
    Sketcher.Constraint("DistanceY", -1, 1, 0, 2, 60.562762),
])
pocket4 = doc.addObject("PartDesign::Pocket", "Pocket003")
body.addObject(pocket4)
pocket4.Profile = sketch12
pocket4.Length = Q("1 in")
pocket4.Reversed = True

# Sketch on YZ plane
sketch13 = doc.addObject("Sketcher::SketchObject", "Sketch012")
body.addObject(sketch13)
sketch13.AttachmentSupport = (doc.YZ_Plane, [""])
sketch13.MapMode = "FlatFace"
sketch13.AttachmentOffset = App.Placement(App.Vector(0, 0, -5.70299), App.Rotation())
sketch13.addGeometry([
    Part.LineSegment(App.Vector(1.5875, 79.612762, 0), App.Vector(1.5875, 60.562762, 0)),
    Part.LineSegment(App.Vector(1.5875, 60.562762, 0), App.Vector(-1.5875, 60.562762, 0)),
    Part.LineSegment(App.Vector(-1.5875, 60.562762, 0), App.Vector(-1.5875, 79.612762, 0)),
    Part.LineSegment(App.Vector(-1.5875, 79.612762, 0), App.Vector(1.5875, 79.612762, 0)),
], False)
sketch13.addConstraint([
    Sketcher.Constraint("Coincident", 0, 2, 1, 1),
    Sketcher.Constraint("Coincident", 1, 2, 2, 1),
    Sketcher.Constraint("Coincident", 2, 2, 3, 1),
    Sketcher.Constraint("Coincident", 3, 2, 0, 1),
    Sketcher.Constraint("Vertical", 0),
    Sketcher.Constraint("Horizontal", 1),
    Sketcher.Constraint("Vertical", 2),
    Sketcher.Constraint("Horizontal", 3),
    Sketcher.Constraint("DistanceY", 0, 2, 0, 1, Q("0.75 in")),
    Sketcher.Constraint("DistanceX", 1, 2, 1, 1, Q("0.125 in")),
    Sketcher.Constraint("DistanceX", -1, 1, 0, 2, Q("0.0625 in")),
    Sketcher.Constraint("DistanceY", -1, 1, 0, 2, 60.562762),
])
pad9 = doc.addObject("PartDesign::Pad", "Pad008")
body.addObject(pad9)
pad9.Profile = sketch13
pad9.Type = "TwoLengths"
pad9.Length = Q("1 in")
pad9.Length2 = Q("1.125 in")
pad9.Reversed = True

# Sketch on XZ plane
sketch14 = doc.addObject("Sketcher::SketchObject", "Sketch013")
body.addObject(sketch14)
sketch14.AttachmentSupport = (doc.XZ_Plane, [""])
sketch14.MapMode = "FlatFace"
sketch14.AttachmentOffset = App.Placement(App.Vector(0, 0, 0.0625 * 25.4), App.Rotation())
sketch14.addGeometry([
    Part.LineSegment(App.Vector(-31.10299, 60.562762, 0), App.Vector(-5.70299, 79.612762, 0)),
    Part.LineSegment(App.Vector(-5.70299, 79.612762, 0), App.Vector(-31.10299, 79.612762, 0)),
    Part.LineSegment(App.Vector(-31.10299, 79.612762, 0), App.Vector(-31.10299, 60.562762, 0)),
], False)
sketch14.addConstraint([
    Sketcher.Constraint("Coincident", 0, 2, 1, 1),
    Sketcher.Constraint("Coincident", 1, 2, 2, 1),
    Sketcher.Constraint("Coincident", 2, 2, 0, 1),
    Sketcher.Constraint("Horizontal", 1),
    Sketcher.Constraint("Vertical", 2),
    Sketcher.Constraint("DistanceX", 1, 2, 1, 1, Q("1 in")),
    Sketcher.Constraint("DistanceY", 2, 2, 2, 1, Q("0.75 in")),
    Sketcher.Constraint("DistanceX", 0, 2, -1, 1, 5.70299),
    Sketcher.Constraint("DistanceY", -1, 1, 0, 2, 79.612762),
])
pocket5 = doc.addObject("PartDesign::Pocket", "Pocket004")
body.addObject(pocket5)
pocket5.Profile = sketch14
pocket5.Length = Q("1 in")

# Sketch on XZ plane
sketch15 = doc.addObject("Sketcher::SketchObject", "Sketch014")
body.addObject(sketch15)
sketch15.AttachmentSupport = (doc.XZ_Plane, [""])
sketch15.MapMode = "FlatFace"
sketch15.AttachmentOffset = App.Placement(App.Vector(0, 0, 0.0625 * 25.4), App.Rotation())
sketch15.addGeometry([
    Part.LineSegment(App.Vector(22.87201, 79.612762, 0), App.Vector(-2.52799, 79.612762, 0)),
    Part.LineSegment(App.Vector(-2.52799, 79.612762, 0), App.Vector(22.87201, 60.562762, 0)),
    Part.LineSegment(App.Vector(22.87201, 60.562762, 0), App.Vector(22.87201, 79.612762, 0)),
], False)
sketch15.addConstraint([
    Sketcher.Constraint("Coincident", 0, 2, 1, 1),
    Sketcher.Constraint("Coincident", 1, 2, 2, 1),
    Sketcher.Constraint("Coincident", 2, 2, 0, 1),
    Sketcher.Constraint("Horizontal", 0),
    Sketcher.Constraint("Vertical", 2),
    Sketcher.Constraint("DistanceX", 0, 2, 0, 1, Q("1 in")),
    Sketcher.Constraint("DistanceY", 2, 1, 2, 2, Q("0.75 in")),
    Sketcher.Constraint("DistanceX", 0, 2, -1, 1, 2.52799),
    Sketcher.Constraint("DistanceY", -1, 1, 0, 2, 79.612762),
])
pocket6 = doc.addObject("PartDesign::Pocket", "Pocket005")
body.addObject(pocket6)
pocket6.Profile = sketch15
pocket6.Length = Q("1 in")

doc.recompute()
